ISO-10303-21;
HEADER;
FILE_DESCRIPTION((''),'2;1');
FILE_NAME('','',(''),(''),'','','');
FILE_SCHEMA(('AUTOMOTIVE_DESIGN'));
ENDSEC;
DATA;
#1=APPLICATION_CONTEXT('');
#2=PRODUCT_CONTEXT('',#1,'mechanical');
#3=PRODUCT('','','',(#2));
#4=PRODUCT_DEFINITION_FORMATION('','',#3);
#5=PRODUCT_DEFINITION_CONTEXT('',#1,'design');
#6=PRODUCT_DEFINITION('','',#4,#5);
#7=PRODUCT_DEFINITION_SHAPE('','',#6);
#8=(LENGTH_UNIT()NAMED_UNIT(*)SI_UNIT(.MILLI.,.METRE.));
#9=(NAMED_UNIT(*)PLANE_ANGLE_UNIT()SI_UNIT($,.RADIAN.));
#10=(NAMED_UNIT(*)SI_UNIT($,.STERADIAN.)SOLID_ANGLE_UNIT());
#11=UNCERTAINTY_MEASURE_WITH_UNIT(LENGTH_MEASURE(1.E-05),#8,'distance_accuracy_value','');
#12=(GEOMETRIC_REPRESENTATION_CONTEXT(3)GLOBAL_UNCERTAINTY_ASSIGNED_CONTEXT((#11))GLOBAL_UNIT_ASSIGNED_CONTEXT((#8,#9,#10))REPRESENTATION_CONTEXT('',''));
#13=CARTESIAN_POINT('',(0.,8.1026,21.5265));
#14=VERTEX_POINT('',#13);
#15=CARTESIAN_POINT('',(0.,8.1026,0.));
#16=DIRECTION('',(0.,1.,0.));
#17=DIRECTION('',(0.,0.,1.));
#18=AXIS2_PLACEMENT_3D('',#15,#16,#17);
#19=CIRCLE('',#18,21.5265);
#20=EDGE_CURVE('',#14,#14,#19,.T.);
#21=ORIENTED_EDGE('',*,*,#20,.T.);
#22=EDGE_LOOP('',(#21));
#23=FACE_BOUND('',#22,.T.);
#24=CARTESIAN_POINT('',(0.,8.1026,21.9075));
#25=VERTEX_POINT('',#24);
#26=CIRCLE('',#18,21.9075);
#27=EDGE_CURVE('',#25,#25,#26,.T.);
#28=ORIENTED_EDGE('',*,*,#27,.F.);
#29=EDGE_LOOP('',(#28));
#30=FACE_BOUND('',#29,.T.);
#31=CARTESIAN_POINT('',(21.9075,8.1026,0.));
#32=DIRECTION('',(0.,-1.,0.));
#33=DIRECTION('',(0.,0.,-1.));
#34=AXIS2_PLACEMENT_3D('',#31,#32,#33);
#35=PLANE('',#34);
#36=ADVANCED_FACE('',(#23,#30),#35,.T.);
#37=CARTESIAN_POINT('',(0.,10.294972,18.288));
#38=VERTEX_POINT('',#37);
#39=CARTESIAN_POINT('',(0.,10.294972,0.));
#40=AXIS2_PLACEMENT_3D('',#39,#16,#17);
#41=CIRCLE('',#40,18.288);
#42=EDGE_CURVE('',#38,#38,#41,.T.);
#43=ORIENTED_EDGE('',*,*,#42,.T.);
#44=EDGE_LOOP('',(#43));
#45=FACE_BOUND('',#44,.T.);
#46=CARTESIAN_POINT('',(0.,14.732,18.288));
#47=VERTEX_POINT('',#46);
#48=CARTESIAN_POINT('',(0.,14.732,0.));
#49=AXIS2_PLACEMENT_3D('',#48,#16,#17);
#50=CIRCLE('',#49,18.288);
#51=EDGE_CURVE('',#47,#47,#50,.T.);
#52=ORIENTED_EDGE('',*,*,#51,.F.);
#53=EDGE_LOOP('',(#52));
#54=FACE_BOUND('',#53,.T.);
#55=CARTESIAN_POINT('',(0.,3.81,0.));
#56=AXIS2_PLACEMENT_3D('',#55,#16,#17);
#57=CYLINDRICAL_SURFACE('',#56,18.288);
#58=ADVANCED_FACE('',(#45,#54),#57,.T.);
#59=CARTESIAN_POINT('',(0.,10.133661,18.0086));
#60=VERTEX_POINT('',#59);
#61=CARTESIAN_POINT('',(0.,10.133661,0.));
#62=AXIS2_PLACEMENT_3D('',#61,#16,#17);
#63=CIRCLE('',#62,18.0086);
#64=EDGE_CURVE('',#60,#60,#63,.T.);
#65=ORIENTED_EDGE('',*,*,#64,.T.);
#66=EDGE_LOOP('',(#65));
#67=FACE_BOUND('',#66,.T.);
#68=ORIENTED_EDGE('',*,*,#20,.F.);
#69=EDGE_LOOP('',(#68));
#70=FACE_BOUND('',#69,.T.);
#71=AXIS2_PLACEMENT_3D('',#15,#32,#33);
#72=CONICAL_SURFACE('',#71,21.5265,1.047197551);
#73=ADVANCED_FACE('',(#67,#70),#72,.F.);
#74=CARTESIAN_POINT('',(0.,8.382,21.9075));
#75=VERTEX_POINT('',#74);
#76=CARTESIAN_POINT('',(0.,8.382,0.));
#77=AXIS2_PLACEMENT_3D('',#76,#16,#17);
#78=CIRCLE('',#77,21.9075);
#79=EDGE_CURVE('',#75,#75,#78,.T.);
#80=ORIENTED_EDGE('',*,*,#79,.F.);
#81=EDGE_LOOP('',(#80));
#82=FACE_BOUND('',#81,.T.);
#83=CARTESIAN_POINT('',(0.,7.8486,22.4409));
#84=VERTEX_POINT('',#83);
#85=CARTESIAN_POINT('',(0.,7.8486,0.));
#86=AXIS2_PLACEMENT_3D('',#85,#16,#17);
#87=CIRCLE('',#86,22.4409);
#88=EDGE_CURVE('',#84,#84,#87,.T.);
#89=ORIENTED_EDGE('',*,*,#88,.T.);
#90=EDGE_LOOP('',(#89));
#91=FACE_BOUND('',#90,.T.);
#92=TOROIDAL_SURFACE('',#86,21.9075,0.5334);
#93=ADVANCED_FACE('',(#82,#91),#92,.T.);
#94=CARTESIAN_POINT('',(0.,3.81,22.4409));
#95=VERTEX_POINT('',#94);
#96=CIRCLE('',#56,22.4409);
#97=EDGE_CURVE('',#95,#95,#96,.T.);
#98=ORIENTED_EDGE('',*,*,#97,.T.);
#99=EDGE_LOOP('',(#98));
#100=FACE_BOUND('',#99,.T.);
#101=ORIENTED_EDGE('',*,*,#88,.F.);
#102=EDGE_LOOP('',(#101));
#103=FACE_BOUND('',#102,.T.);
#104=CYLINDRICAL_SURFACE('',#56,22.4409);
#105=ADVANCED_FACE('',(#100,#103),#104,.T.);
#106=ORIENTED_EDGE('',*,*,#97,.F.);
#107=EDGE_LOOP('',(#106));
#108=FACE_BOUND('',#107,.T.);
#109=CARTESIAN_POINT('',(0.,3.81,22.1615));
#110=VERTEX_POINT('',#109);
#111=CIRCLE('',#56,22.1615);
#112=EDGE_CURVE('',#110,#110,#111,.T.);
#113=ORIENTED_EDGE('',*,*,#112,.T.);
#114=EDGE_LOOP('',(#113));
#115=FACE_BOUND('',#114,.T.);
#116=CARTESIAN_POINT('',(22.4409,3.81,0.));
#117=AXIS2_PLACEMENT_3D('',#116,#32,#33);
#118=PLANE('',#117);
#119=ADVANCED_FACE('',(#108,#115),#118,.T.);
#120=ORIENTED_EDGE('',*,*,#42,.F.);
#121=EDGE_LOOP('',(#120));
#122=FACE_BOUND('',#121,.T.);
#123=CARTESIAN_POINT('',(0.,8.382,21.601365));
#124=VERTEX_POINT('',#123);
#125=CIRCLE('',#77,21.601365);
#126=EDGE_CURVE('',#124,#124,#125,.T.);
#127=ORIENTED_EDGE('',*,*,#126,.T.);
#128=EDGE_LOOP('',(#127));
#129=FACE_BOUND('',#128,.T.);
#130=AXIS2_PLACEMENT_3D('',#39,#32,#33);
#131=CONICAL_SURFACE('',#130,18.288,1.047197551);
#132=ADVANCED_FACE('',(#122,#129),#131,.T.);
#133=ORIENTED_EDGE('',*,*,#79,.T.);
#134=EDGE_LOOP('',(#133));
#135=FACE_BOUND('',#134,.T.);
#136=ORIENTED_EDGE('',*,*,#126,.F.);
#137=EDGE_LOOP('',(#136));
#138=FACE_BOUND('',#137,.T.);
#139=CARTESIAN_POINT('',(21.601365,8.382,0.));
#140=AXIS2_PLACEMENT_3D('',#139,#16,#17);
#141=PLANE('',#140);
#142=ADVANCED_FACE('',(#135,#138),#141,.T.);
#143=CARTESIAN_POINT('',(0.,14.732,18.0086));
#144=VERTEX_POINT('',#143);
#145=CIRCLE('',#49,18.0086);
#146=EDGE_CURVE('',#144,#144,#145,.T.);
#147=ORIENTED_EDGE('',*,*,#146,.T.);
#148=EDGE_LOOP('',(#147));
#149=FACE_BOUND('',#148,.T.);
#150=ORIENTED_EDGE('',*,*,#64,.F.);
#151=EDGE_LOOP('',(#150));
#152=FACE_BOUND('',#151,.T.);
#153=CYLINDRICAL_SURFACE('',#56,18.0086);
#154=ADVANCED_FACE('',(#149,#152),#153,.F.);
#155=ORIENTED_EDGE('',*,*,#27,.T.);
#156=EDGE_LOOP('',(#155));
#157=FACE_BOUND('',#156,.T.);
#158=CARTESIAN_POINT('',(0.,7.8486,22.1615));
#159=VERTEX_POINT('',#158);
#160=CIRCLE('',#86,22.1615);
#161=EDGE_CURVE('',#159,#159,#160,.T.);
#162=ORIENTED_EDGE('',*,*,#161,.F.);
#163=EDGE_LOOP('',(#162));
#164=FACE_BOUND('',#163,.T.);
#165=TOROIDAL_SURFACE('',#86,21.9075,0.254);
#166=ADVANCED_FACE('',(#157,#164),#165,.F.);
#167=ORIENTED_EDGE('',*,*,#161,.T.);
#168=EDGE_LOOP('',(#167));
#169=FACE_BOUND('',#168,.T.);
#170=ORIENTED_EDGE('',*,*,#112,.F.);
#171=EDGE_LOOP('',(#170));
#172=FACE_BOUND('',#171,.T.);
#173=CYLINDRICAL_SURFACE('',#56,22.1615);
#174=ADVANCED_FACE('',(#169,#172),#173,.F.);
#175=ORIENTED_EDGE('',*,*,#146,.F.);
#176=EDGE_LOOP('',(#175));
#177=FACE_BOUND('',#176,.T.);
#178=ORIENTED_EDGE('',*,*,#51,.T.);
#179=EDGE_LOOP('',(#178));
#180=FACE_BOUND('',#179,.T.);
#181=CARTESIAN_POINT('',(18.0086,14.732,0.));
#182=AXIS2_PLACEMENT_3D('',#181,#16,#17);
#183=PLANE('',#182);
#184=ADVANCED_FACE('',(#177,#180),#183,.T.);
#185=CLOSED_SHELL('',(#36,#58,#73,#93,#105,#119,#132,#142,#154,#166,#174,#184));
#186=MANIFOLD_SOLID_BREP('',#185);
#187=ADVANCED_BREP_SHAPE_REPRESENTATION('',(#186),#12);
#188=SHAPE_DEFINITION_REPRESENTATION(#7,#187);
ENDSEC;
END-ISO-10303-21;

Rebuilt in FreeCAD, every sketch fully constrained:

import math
import FreeCAD as App
import Part
import Sketcher
Q = App.Units.Quantity

doc = App.newDocument("Part")
body = doc.addObject("PartDesign::Body", "Body")

sketch1 = doc.addObject("Sketcher::SketchObject", "Sketch")
body.addObject(sketch1)
sketch1.AttachmentSupport = (doc.XY_Plane, [""])
sketch1.MapMode = "FlatFace"
sketch1.addGeometry(Part.LineSegment(App.Vector(21.53, 8.1, 0), App.Vector(18.01, 10.13, 0)), False)
sketch1.addGeometry(Part.LineSegment(App.Vector(18.01, 10.13, 0), App.Vector(18.01, 14.73, 0)), False)
sketch1.addGeometry(Part.LineSegment(App.Vector(18.01, 14.73, 0), App.Vector(18.29, 14.73, 0)), False)
sketch1.addGeometry(Part.LineSegment(App.Vector(18.29, 14.73, 0), App.Vector(18.29, 10.29, 0)), False)
sketch1.addGeometry(Part.LineSegment(App.Vector(18.29, 10.29, 0), App.Vector(21.6, 8.38, 0)), False)
sketch1.addGeometry(Part.LineSegment(App.Vector(21.6, 8.38, 0), App.Vector(21.91, 8.38, 0)), False)
sketch1.addGeometry(Part.ArcOfCircle(Part.Circle(App.Vector(21.91, 7.85, 0), App.Vector(0, 0, 1), 0.53), math.radians(0), math.radians(90)), False)
sketch1.addGeometry(Part.LineSegment(App.Vector(22.44, 7.85, 0), App.Vector(22.44, 3.81, 0)), False)
sketch1.addGeometry(Part.LineSegment(App.Vector(22.44, 3.81, 0), App.Vector(22.16, 3.81, 0)), False)
sketch1.addGeometry(Part.LineSegment(App.Vector(22.16, 3.81, 0), App.Vector(22.16, 7.85, 0)), False)
sketch1.addGeometry(Part.ArcOfCircle(Part.Circle(App.Vector(21.91, 7.85, 0), App.Vector(0, 0, 1), 0.25), math.radians(0), math.radians(90)), False)
sketch1.addGeometry(Part.LineSegment(App.Vector(21.91, 8.1, 0), App.Vector(21.53, 8.1, 0)), False)
sketch1.addConstraint(Sketcher.Constraint("Coincident", 0, 2, 1, 1))
sketch1.addConstraint(Sketcher.Constraint("Coincident", 1, 2, 2, 1))
sketch1.addConstraint(Sketcher.Constraint("Coincident", 2, 2, 3, 1))
sketch1.addConstraint(Sketcher.Constraint("Coincident", 3, 2, 4, 1))
sketch1.addConstraint(Sketcher.Constraint("Coincident", 4, 2, 5, 1))
sketch1.addConstraint(Sketcher.Constraint("Tangent", 5, 2, 6, 2))
sketch1.addConstraint(Sketcher.Constraint("Tangent", 6, 1, 7, 1))
sketch1.addConstraint(Sketcher.Constraint("Coincident", 7, 2, 8, 1))
sketch1.addConstraint(Sketcher.Constraint("Coincident", 8, 2, 9, 1))
sketch1.addConstraint(Sketcher.Constraint("Tangent", 9, 2, 10, 1))
sketch1.addConstraint(Sketcher.Constraint("Tangent", 10, 2, 11, 1))
sketch1.addConstraint(Sketcher.Constraint("Coincident", 11, 2, 0, 1))
sketch1.addConstraint(Sketcher.Constraint("Vertical", 1))
sketch1.addConstraint(Sketcher.Constraint("Horizontal", 2))
sketch1.addConstraint(Sketcher.Constraint("Vertical", 3))
sketch1.addConstraint(Sketcher.Constraint("Horizontal", 5))
sketch1.addConstraint(Sketcher.Constraint("Vertical", 7))
sketch1.addConstraint(Sketcher.Constraint("Horizontal", 8))
sketch1.addConstraint(Sketcher.Constraint("Vertical", 9))
sketch1.addConstraint(Sketcher.Constraint("Horizontal", 11))
sketch1.addConstraint(Sketcher.Constraint("Coincident", 10, 3, 6, 3))
sketch1.addConstraint(Sketcher.Constraint("Parallel", 0, 4))
sketch1.addConstraint(Sketcher.Constraint("Equal", 2, 8))
sketch1.addConstraint(Sketcher.Constraint("Radius", 10, Q("0.01 in")))
sketch1.addConstraint(Sketcher.Constraint("Angle", 0, Q("150 deg")))
sketch1.addConstraint(Sketcher.Constraint("Radius", 6, Q("0.021 in")))
sketch1.addConstraint(Sketcher.Constraint("DistanceX", 11, 2, 11, 1, Q("0.015 in")))
sketch1.addConstraint(Sketcher.Constraint("DistanceY", 7, 2, 7, 1, Q("0.159 in")))
sketch1.addConstraint(Sketcher.Constraint("DistanceY", -1, 1, 1, 2, Q("0.58 in")))
sketch1.addConstraint(Sketcher.Constraint("DistanceX", -1, 1, 2, 2, Q("0.72 in")))
sketch1.addConstraint(Sketcher.Constraint("DistanceY", -1, 1, 4, 2, Q("0.33 in")))
sketch1.addConstraint(Sketcher.Constraint("DistanceX", -1, 1, 6, 3, Q("0.8625 in")))
sketch1.addConstraint(Sketcher.Constraint("DistanceX", 5, 1, 5, 2, 0.306135))
revolution = doc.addObject("PartDesign::Revolution", "Revolution")
body.addObject(revolution)
revolution.Profile = sketch1
revolution.ReferenceAxis = (sketch1, ["V_Axis"])
revolution.Angle = 360

doc.recompute()
